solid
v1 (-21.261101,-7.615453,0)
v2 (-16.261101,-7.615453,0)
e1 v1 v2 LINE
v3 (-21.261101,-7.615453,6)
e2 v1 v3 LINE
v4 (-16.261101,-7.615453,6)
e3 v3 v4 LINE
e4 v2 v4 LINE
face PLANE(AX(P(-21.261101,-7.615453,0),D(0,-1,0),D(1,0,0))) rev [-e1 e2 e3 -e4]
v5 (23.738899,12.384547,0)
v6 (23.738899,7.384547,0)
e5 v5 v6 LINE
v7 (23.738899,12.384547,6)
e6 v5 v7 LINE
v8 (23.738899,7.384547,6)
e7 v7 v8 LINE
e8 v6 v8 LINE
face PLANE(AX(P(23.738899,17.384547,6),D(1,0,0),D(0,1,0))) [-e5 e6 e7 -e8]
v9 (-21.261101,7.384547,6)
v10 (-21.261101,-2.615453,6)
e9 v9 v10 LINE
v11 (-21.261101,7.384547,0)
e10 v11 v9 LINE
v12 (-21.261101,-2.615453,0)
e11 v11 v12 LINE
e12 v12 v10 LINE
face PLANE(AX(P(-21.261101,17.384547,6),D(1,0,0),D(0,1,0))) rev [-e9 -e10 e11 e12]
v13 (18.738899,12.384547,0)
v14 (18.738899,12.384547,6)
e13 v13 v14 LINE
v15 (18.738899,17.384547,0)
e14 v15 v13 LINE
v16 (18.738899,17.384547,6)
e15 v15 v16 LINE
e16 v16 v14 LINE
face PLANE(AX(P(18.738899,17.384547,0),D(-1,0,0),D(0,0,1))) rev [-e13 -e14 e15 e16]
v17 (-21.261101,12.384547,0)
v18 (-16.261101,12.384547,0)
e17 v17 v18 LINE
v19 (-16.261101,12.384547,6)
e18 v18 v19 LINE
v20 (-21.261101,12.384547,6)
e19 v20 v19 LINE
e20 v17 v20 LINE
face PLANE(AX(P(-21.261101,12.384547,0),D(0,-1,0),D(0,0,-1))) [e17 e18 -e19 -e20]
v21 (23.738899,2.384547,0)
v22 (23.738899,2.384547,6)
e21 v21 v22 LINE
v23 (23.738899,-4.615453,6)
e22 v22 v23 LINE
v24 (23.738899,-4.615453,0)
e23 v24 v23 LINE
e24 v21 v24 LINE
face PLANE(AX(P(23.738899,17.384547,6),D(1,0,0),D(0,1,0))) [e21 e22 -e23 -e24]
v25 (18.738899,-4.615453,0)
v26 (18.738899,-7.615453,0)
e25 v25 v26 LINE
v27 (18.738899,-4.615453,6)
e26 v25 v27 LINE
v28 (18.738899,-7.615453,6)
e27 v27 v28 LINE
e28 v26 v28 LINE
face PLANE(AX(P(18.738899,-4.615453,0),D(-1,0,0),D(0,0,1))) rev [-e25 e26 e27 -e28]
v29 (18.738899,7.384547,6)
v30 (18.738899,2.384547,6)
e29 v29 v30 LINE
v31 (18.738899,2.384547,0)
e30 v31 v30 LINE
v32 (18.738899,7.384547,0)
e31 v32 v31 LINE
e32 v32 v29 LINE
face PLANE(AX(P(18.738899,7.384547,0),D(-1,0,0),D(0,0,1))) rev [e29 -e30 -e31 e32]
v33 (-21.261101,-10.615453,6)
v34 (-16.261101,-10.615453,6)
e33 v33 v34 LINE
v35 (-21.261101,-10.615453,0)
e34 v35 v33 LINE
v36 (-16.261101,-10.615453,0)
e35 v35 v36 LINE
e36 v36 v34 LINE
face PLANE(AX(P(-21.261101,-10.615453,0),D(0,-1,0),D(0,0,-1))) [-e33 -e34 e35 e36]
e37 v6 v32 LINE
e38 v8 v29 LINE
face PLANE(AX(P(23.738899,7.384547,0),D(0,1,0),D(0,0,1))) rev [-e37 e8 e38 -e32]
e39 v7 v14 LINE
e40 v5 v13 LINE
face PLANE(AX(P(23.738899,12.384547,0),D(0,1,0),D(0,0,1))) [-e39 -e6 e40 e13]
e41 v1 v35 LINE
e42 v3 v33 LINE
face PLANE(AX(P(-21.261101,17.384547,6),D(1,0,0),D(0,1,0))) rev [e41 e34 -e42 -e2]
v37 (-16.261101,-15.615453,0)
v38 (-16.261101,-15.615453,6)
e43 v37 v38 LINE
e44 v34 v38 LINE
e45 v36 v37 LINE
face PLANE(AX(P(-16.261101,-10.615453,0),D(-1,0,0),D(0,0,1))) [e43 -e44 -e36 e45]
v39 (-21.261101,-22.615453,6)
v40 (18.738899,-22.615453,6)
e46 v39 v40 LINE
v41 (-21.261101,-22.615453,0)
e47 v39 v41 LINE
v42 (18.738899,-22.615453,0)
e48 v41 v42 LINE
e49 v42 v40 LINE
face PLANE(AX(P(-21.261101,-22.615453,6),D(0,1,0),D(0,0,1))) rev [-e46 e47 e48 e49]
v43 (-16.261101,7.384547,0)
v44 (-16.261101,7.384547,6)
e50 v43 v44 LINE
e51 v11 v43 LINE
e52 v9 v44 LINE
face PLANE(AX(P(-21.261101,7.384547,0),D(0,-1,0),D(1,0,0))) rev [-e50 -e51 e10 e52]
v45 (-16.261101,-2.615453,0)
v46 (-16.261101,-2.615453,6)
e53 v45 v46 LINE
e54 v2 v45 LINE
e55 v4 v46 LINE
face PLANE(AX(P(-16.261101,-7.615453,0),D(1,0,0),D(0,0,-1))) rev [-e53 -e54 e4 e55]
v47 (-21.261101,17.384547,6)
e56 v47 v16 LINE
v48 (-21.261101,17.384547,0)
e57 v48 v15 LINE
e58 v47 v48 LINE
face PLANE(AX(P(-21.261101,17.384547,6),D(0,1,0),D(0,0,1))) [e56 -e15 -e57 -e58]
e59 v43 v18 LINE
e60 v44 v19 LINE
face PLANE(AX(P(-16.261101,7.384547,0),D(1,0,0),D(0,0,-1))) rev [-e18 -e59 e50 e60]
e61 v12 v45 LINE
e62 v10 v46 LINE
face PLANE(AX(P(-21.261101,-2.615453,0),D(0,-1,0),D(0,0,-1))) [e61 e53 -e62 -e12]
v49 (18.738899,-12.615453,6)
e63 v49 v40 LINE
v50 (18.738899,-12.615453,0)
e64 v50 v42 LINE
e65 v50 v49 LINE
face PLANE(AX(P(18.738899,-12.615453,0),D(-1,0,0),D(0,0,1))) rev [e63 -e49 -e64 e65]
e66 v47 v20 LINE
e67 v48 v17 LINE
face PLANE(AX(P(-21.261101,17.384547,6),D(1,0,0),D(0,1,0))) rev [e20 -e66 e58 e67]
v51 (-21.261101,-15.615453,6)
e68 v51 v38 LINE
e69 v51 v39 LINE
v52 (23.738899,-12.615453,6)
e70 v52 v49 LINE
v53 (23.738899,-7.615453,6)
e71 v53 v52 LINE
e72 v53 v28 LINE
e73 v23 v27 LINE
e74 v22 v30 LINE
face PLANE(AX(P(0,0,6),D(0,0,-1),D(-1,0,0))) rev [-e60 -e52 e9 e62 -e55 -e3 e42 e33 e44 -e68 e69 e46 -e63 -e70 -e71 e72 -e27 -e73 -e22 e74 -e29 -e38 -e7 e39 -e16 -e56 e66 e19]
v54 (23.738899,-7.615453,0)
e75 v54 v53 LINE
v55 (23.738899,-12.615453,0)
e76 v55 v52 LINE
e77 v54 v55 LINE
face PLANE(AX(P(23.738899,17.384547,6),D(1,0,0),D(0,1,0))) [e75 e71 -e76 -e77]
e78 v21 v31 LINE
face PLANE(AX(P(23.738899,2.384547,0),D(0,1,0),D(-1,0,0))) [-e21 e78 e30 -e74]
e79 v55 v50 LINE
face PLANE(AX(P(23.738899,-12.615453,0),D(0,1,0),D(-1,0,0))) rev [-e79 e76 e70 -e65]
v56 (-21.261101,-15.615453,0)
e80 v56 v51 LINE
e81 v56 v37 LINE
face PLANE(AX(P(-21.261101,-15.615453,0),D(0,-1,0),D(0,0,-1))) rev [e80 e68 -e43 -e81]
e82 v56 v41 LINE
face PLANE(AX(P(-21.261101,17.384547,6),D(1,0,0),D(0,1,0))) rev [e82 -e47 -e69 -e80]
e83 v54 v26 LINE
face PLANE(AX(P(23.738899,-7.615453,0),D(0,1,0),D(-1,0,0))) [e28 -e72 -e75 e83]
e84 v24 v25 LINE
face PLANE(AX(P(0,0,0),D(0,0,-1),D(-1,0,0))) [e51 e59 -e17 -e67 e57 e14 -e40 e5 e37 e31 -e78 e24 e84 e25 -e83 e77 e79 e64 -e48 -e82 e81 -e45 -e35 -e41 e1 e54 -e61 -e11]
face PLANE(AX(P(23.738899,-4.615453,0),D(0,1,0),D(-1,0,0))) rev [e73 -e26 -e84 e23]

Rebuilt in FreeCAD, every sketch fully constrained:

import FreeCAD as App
import Part
import Sketcher

V = App.Vector


def add_polygon(sketch, points):
    """Adds a closed chain of lines whose ends are joined by coincident constraints."""
    first, n = sketch.GeometryCount, len(points)
    for a, b in zip(points, points[1:] + points[:1]):
        sketch.addGeometry(Part.LineSegment(App.Vector(*a, 0), App.Vector(*b, 0)), False)
    for i in range(n):
        sketch.addConstraint(Sketcher.Constraint("Coincident", first + i, 2, first + (i + 1) % n, 1))

doc = App.newDocument("Part")
body = doc.addObject("PartDesign::Body", "Body")

# Sketch on XY plane
sketch1 = body.newObject("Sketcher::SketchObject", "Sketch")
sketch1.AttachmentSupport = (doc.getObject("XY_Plane"), [""])
sketch1.MapMode = "FlatFace"
add_polygon(sketch1, [(-21, 17), (-21, -23), (24, -23), (24, 17)])  # lines 0-3
sketch1.addConstraint([
    Sketcher.Constraint("Vertical", 0),
    Sketcher.Constraint("Horizontal", 1),
    Sketcher.Constraint("Vertical", 2),
    Sketcher.Constraint("Horizontal", 3),
    Sketcher.Constraint("DistanceX", 1, 1, 1, 2, 45.0),
    Sketcher.Constraint("DistanceY", 0, 2, 0, 1, 40.0),
    Sketcher.Constraint("DistanceX", 0, 2, -1, 1, 21.261101),
    Sketcher.Constraint("DistanceY", 0, 2, -1, 1, 22.615453),
])
pad1 = body.newObject("PartDesign::Pad", "Pad")
pad1.Profile = sketch1
pad1.Length = 6

# Sketch on XY plane
sketch2 = body.newObject("Sketcher::SketchObject", "Sketch001")
sketch2.AttachmentSupport = (doc.getObject("XY_Plane"), [""])
sketch2.MapMode = "FlatFace"
sketch2.AttachmentOffset = App.Placement(V(0, 0, 6), App.Rotation())
add_polygon(sketch2, [(-21, 7), (-21, 2), (-16, 2), (-16, 7)])  # lines 0-3
add_polygon(sketch2, [(-21, -1), (-21, -8), (-16, -8), (-16, -1)])  # lines 4-7
add_polygon(sketch2, [(-21, -13), (-21, -18), (-16, -18), (-16, -13)])  # lines 8-11
sketch2.addConstraint([
    Sketcher.Constraint("Vertical", 0),
    Sketcher.Constraint("Horizontal", 1),
    Sketcher.Constraint("Vertical", 2),
    Sketcher.Constraint("Horizontal", 3),
    Sketcher.Constraint("Vertical", 4),
    Sketcher.Constraint("Horizontal", 5),
    Sketcher.Constraint("Vertical", 6),
    Sketcher.Constraint("Horizontal", 7),
    Sketcher.Constraint("Vertical", 8),
    Sketcher.Constraint("Horizontal", 9),
    Sketcher.Constraint("Vertical", 10),
    Sketcher.Constraint("Horizontal", 11),
    Sketcher.Constraint("Vertical", 3, 2, 4, 2),
    Sketcher.Constraint("Vertical", 2, 2, 5, 2),
    Sketcher.Constraint("Vertical", 7, 2, 8, 2),
    Sketcher.Constraint("Vertical", 6, 2, 9, 2),
    Sketcher.Constraint("Equal", 11, 0),
    Sketcher.Constraint("Equal", 2, 8),
    Sketcher.Constraint("DistanceX", 1, 1, 1, 2, 5.0),
    Sketcher.Constraint("DistanceY", 4, 2, 4, 1, 7.0),
    Sketcher.Constraint("DistanceY", 4, 2, 0, 2, 10.0),
    Sketcher.Constraint("DistanceY", 8, 2, 4, 2, 10.0),
    Sketcher.Constraint("DistanceX", 0, 2, -1, 1, 21.261101),
    Sketcher.Constraint("DistanceY", -1, 1, 0, 2, 2.384547),
])
pocket1 = body.newObject("PartDesign::Pocket", "Pocket")
pocket1.Profile = sketch2
pocket1.Length = 6

# Sketch on XY plane
sketch3 = body.newObject("Sketcher::SketchObject", "Sketch002")
sketch3.AttachmentSupport = (doc.getObject("XY_Plane"), [""])
sketch3.MapMode = "FlatFace"
sketch3.AttachmentOffset = App.Placement(V(0, 0, 6), App.Rotation())
add_polygon(sketch3, [(18.7, -17.6), (18.7, -22.6), (23.7, -22.6), (23.7, -17.6)])  # lines 0-3
add_polygon(sketch3, [(18.7, -7.6), (18.7, -10.6), (23.7, -10.6), (23.7, -7.6)])  # lines 4-7
add_polygon(sketch3, [(18.7, 17.4), (18.7, 12.4), (23.7, 12.4), (23.7, 17.4)])  # lines 8-11
add_polygon(sketch3, [(18.7, 7.4), (18.7, -2.6), (23.7, -2.6), (23.7, 7.4)])  # lines 12-15
sketch3.addConstraint([
    Sketcher.Constraint("Vertical", 0),
    Sketcher.Constraint("Horizontal", 1),
    Sketcher.Constraint("Vertical", 2),
    Sketcher.Constraint("Horizontal", 3),
    Sketcher.Constraint("Vertical", 4),
    Sketcher.Constraint("Horizontal", 5),
    Sketcher.Constraint("Vertical", 6),
    Sketcher.Constraint("Horizontal", 7),
    Sketcher.Constraint("Vertical", 8),
    Sketcher.Constraint("Horizontal", 9),
    Sketcher.Constraint("Vertical", 10),
    Sketcher.Constraint("Horizontal", 11),
    Sketcher.Constraint("Vertical", 12),
    Sketcher.Constraint("Horizontal", 13),
    Sketcher.Constraint("Vertical", 14),
    Sketcher.Constraint("Horizontal", 15),
    Sketcher.Constraint("Vertical", 3, 2, 4, 2),
    Sketcher.Constraint("Vertical", 2, 2, 5, 2),
    Sketcher.Constraint("Vertical", 7, 2, 8, 2),
    Sketcher.Constraint("Vertical", 6, 2, 9, 2),
    Sketcher.Constraint("Vertical", 11, 2, 12, 2),
    Sketcher.Constraint("Vertical", 10, 2, 13, 2),
    Sketcher.Constraint("Equal", 15, 0),
    Sketcher.Constraint("Equal", 2, 8),
    Sketcher.Constraint("DistanceX", 1, 1, 1, 2, 5.0),
    Sketcher.Constraint("DistanceY", 4, 2, 4, 1, 3.0),
    Sketcher.Constraint("DistanceY", 12, 2, 12, 1, 10.0),
    Sketcher.Constraint("DistanceY", 3, 2, 4, 2, 7.0),
    Sketcher.Constraint("DistanceY", 7, 2, 8, 2, 20.0),
    Sketcher.Constraint("DistanceY", 7, 2, 12, 2, 5.0),
    Sketcher.Constraint("DistanceX", -1, 1, 0, 2, 18.738899),
    Sketcher.Constraint("DistanceY", 0, 2, -1, 1, 22.615453),
])
pocket2 = body.newObject("PartDesign::Pocket", "Pocket001")
pocket2.Profile = sketch3
pocket2.Length = 6

# Sketch on XY plane
sketch4 = body.newObject("Sketcher::SketchObject", "Sketch003")
sketch4.AttachmentSupport = (doc.getObject("XY_Plane"), [""])
sketch4.MapMode = "FlatFace"
sketch4.AttachmentOffset = App.Placement(V(0, 0, 6), App.Rotation())
add_polygon(sketch4, [(-21, 7), (-21, -18), (-16, -18), (-16, 7)])  # lines 0-3
sketch4.addConstraint([
    Sketcher.Constraint("Vertical", 0),
    Sketcher.Constraint("Horizontal", 1),
    Sketcher.Constraint("Vertical", 2),
    Sketcher.Constraint("Horizontal", 3),
    Sketcher.Constraint("DistanceX", 1, 1, 1, 2, 5.0),
    Sketcher.Constraint("DistanceY", 0, 2, 0, 1, 25.0),
    Sketcher.Constraint("DistanceX", 0, 2, -1, 1, 21.261101),
    Sketcher.Constraint("DistanceY", 0, 2, -1, 1, 17.615453),
])
pad2 = body.newObject("PartDesign::Pad", "Pad001")
pad2.Profile = sketch4
pad2.Length = 6
pad2.Reversed = True

# Sketch on XY plane
sketch5 = body.newObject("Sketcher::SketchObject", "Sketch004")
sketch5.AttachmentSupport = (doc.getObject("XY_Plane"), [""])
sketch5.MapMode = "FlatFace"
sketch5.AttachmentOffset = App.Placement(V(0, 0, 6), App.Rotation())
add_polygon(sketch5, [(-21, -3), (-21, -8), (-16, -8), (-16, -3)])  # lines 0-3
add_polygon(sketch5, [(-21, -11), (-21, -16), (-16, -16), (-16, -11)])  # lines 4-7
add_polygon(sketch5, [(-21, 12), (-21, 7), (-16, 7), (-16, 12)])  # lines 8-11
sketch5.addConstraint([
    Sketcher.Constraint("Vertical", 0),
    Sketcher.Constraint("Horizontal", 1),
    Sketcher.Constraint("Vertical", 2),
    Sketcher.Constraint("Horizontal", 3),
    Sketcher.Constraint("Vertical", 4),
    Sketcher.Constraint("Horizontal", 5),
    Sketcher.Constraint("Vertical", 6),
    Sketcher.Constraint("Horizontal", 7),
    Sketcher.Constraint("Vertical", 8),
    Sketcher.Constraint("Horizontal", 9),
    Sketcher.Constraint("Vertical", 10),
    Sketcher.Constraint("Horizontal", 11),
    Sketcher.Constraint("Vertical", 3, 2, 4, 2),
    Sketcher.Constraint("Vertical", 2, 2, 5, 2),
    Sketcher.Constraint("Vertical", 7, 2, 8, 2),
    Sketcher.Constraint("Vertical", 6, 2, 9, 2),
    Sketcher.Constraint("Equal", 11, 0),
    Sketcher.Constraint("Equal", 2, 4),
    Sketcher.Constraint("Equal", 6, 8),
    Sketcher.Constraint("DistanceX", 1, 1, 1, 2, 5.0),
    Sketcher.Constraint("DistanceY", 4, 2, 0, 2, 8.0),
    Sketcher.Constraint("DistanceY", 3, 2, 8, 2, 10.0),
    Sketcher.Constraint("DistanceX", 0, 2, -1, 1, 21.261101),
    Sketcher.Constraint("DistanceY", 0, 2, -1, 1, 7.615453),
])
pocket3 = body.newObject("PartDesign::Pocket", "Pocket002")
pocket3.Profile = sketch5
pocket3.Length = 6

# Sketch on XY plane
sketch6 = body.newObject("Sketcher::SketchObject", "Sketch005")
sketch6.AttachmentSupport = (doc.getObject("XY_Plane"), [""])
sketch6.MapMode = "FlatFace"
sketch6.AttachmentOffset = App.Placement(V(0, 0, 6), App.Rotation())
add_polygon(sketch6, [(19, 17), (19, -23), (24, -23), (24, 17)])  # lines 0-3
sketch6.addConstraint([
    Sketcher.Constraint("Vertical", 0),
    Sketcher.Constraint("Horizontal", 1),
    Sketcher.Constraint("Vertical", 2),
    Sketcher.Constraint("Horizontal", 3),
    Sketcher.Constraint("DistanceX", 1, 1, 1, 2, 5.0),
    Sketcher.Constraint("DistanceY", 0, 2, 0, 1, 40.0),
    Sketcher.Constraint("DistanceX", -1, 1, 0, 2, 18.738899),
    Sketcher.Constraint("DistanceY", 0, 2, -1, 1, 22.615453),
])
pad3 = body.newObject("PartDesign::Pad", "Pad002")
pad3.Profile = sketch6
pad3.Length = 6
pad3.Reversed = True

# Sketch on XY plane
sketch7 = body.newObject("Sketcher::SketchObject", "Sketch006")
sketch7.AttachmentSupport = (doc.getObject("XY_Plane"), [""])
sketch7.MapMode = "FlatFace"
sketch7.AttachmentOffset = App.Placement(V(0, 0, 6), App.Rotation())
add_polygon(sketch7, [(18.7, 17.4), (18.7, 12.4), (23.7, 12.4), (23.7, 17.4)])  # lines 0-3
add_polygon(sketch7, [(18.7, 7.4), (18.7, 2.4), (23.7, 2.4), (23.7, 7.4)])  # lines 4-7
add_polygon(sketch7, [(18.7, -4.6), (18.7, -7.6), (23.7, -7.6), (23.7, -4.6)])  # lines 8-11
add_polygon(sketch7, [(18.7, -12.6), (18.7, -22.6), (23.7, -22.6), (23.7, -12.6)])  # lines 12-15
sketch7.addConstraint([
    Sketcher.Constraint("Vertical", 0),
    Sketcher.Constraint("Horizontal", 1),
    Sketcher.Constraint("Vertical", 2),
    Sketcher.Constraint("Horizontal", 3),
    Sketcher.Constraint("Vertical", 4),
    Sketcher.Constraint("Horizontal", 5),
    Sketcher.Constraint("Vertical", 6),
    Sketcher.Constraint("Horizontal", 7),
    Sketcher.Constraint("Vertical", 8),
    Sketcher.Constraint("Horizontal", 9),
    Sketcher.Constraint("Vertical", 10),
    Sketcher.Constraint("Horizontal", 11),
    Sketcher.Constraint("Vertical", 12),
    Sketcher.Constraint("Horizontal", 13),
    Sketcher.Constraint("Vertical", 14),
    Sketcher.Constraint("Horizontal", 15),
    Sketcher.Constraint("Vertical", 3, 2, 4, 2),
    Sketcher.Constraint("Vertical", 2, 2, 5, 2),
    Sketcher.Constraint("Vertical", 7, 2, 8, 2),
    Sketcher.Constraint("Vertical", 6, 2, 9, 2),
    Sketcher.Constraint("Vertical", 11, 2, 12, 2),
    Sketcher.Constraint("Vertical", 10, 2, 13, 2),
    Sketcher.Constraint("Equal", 15, 0),
    Sketcher.Constraint("Equal", 2, 4),
    Sketcher.Constraint("DistanceX", 1, 1, 1, 2, 5.0),
    Sketcher.Constraint("DistanceY", 8, 2, 8, 1, 3.0),
    Sketcher.Constraint("DistanceY", 12, 2, 12, 1, 10.0),
    Sketcher.Constraint("DistanceY", 4, 2, 0, 2, 10.0),
    Sketcher.Constraint("DistanceY", 8, 2, 4, 2, 10.0),
    Sketcher.Constraint("DistanceY", 12, 2, 8, 2, 15.0),
    Sketcher.Constraint("DistanceX", -1, 1, 0, 2, 18.738899),
    Sketcher.Constraint("DistanceY", -1, 1, 0, 2, 12.384547),
])
pocket4 = body.newObject("PartDesign::Pocket", "Pocket003")
pocket4.Profile = sketch7
pocket4.Length = 6

doc.recompute()
